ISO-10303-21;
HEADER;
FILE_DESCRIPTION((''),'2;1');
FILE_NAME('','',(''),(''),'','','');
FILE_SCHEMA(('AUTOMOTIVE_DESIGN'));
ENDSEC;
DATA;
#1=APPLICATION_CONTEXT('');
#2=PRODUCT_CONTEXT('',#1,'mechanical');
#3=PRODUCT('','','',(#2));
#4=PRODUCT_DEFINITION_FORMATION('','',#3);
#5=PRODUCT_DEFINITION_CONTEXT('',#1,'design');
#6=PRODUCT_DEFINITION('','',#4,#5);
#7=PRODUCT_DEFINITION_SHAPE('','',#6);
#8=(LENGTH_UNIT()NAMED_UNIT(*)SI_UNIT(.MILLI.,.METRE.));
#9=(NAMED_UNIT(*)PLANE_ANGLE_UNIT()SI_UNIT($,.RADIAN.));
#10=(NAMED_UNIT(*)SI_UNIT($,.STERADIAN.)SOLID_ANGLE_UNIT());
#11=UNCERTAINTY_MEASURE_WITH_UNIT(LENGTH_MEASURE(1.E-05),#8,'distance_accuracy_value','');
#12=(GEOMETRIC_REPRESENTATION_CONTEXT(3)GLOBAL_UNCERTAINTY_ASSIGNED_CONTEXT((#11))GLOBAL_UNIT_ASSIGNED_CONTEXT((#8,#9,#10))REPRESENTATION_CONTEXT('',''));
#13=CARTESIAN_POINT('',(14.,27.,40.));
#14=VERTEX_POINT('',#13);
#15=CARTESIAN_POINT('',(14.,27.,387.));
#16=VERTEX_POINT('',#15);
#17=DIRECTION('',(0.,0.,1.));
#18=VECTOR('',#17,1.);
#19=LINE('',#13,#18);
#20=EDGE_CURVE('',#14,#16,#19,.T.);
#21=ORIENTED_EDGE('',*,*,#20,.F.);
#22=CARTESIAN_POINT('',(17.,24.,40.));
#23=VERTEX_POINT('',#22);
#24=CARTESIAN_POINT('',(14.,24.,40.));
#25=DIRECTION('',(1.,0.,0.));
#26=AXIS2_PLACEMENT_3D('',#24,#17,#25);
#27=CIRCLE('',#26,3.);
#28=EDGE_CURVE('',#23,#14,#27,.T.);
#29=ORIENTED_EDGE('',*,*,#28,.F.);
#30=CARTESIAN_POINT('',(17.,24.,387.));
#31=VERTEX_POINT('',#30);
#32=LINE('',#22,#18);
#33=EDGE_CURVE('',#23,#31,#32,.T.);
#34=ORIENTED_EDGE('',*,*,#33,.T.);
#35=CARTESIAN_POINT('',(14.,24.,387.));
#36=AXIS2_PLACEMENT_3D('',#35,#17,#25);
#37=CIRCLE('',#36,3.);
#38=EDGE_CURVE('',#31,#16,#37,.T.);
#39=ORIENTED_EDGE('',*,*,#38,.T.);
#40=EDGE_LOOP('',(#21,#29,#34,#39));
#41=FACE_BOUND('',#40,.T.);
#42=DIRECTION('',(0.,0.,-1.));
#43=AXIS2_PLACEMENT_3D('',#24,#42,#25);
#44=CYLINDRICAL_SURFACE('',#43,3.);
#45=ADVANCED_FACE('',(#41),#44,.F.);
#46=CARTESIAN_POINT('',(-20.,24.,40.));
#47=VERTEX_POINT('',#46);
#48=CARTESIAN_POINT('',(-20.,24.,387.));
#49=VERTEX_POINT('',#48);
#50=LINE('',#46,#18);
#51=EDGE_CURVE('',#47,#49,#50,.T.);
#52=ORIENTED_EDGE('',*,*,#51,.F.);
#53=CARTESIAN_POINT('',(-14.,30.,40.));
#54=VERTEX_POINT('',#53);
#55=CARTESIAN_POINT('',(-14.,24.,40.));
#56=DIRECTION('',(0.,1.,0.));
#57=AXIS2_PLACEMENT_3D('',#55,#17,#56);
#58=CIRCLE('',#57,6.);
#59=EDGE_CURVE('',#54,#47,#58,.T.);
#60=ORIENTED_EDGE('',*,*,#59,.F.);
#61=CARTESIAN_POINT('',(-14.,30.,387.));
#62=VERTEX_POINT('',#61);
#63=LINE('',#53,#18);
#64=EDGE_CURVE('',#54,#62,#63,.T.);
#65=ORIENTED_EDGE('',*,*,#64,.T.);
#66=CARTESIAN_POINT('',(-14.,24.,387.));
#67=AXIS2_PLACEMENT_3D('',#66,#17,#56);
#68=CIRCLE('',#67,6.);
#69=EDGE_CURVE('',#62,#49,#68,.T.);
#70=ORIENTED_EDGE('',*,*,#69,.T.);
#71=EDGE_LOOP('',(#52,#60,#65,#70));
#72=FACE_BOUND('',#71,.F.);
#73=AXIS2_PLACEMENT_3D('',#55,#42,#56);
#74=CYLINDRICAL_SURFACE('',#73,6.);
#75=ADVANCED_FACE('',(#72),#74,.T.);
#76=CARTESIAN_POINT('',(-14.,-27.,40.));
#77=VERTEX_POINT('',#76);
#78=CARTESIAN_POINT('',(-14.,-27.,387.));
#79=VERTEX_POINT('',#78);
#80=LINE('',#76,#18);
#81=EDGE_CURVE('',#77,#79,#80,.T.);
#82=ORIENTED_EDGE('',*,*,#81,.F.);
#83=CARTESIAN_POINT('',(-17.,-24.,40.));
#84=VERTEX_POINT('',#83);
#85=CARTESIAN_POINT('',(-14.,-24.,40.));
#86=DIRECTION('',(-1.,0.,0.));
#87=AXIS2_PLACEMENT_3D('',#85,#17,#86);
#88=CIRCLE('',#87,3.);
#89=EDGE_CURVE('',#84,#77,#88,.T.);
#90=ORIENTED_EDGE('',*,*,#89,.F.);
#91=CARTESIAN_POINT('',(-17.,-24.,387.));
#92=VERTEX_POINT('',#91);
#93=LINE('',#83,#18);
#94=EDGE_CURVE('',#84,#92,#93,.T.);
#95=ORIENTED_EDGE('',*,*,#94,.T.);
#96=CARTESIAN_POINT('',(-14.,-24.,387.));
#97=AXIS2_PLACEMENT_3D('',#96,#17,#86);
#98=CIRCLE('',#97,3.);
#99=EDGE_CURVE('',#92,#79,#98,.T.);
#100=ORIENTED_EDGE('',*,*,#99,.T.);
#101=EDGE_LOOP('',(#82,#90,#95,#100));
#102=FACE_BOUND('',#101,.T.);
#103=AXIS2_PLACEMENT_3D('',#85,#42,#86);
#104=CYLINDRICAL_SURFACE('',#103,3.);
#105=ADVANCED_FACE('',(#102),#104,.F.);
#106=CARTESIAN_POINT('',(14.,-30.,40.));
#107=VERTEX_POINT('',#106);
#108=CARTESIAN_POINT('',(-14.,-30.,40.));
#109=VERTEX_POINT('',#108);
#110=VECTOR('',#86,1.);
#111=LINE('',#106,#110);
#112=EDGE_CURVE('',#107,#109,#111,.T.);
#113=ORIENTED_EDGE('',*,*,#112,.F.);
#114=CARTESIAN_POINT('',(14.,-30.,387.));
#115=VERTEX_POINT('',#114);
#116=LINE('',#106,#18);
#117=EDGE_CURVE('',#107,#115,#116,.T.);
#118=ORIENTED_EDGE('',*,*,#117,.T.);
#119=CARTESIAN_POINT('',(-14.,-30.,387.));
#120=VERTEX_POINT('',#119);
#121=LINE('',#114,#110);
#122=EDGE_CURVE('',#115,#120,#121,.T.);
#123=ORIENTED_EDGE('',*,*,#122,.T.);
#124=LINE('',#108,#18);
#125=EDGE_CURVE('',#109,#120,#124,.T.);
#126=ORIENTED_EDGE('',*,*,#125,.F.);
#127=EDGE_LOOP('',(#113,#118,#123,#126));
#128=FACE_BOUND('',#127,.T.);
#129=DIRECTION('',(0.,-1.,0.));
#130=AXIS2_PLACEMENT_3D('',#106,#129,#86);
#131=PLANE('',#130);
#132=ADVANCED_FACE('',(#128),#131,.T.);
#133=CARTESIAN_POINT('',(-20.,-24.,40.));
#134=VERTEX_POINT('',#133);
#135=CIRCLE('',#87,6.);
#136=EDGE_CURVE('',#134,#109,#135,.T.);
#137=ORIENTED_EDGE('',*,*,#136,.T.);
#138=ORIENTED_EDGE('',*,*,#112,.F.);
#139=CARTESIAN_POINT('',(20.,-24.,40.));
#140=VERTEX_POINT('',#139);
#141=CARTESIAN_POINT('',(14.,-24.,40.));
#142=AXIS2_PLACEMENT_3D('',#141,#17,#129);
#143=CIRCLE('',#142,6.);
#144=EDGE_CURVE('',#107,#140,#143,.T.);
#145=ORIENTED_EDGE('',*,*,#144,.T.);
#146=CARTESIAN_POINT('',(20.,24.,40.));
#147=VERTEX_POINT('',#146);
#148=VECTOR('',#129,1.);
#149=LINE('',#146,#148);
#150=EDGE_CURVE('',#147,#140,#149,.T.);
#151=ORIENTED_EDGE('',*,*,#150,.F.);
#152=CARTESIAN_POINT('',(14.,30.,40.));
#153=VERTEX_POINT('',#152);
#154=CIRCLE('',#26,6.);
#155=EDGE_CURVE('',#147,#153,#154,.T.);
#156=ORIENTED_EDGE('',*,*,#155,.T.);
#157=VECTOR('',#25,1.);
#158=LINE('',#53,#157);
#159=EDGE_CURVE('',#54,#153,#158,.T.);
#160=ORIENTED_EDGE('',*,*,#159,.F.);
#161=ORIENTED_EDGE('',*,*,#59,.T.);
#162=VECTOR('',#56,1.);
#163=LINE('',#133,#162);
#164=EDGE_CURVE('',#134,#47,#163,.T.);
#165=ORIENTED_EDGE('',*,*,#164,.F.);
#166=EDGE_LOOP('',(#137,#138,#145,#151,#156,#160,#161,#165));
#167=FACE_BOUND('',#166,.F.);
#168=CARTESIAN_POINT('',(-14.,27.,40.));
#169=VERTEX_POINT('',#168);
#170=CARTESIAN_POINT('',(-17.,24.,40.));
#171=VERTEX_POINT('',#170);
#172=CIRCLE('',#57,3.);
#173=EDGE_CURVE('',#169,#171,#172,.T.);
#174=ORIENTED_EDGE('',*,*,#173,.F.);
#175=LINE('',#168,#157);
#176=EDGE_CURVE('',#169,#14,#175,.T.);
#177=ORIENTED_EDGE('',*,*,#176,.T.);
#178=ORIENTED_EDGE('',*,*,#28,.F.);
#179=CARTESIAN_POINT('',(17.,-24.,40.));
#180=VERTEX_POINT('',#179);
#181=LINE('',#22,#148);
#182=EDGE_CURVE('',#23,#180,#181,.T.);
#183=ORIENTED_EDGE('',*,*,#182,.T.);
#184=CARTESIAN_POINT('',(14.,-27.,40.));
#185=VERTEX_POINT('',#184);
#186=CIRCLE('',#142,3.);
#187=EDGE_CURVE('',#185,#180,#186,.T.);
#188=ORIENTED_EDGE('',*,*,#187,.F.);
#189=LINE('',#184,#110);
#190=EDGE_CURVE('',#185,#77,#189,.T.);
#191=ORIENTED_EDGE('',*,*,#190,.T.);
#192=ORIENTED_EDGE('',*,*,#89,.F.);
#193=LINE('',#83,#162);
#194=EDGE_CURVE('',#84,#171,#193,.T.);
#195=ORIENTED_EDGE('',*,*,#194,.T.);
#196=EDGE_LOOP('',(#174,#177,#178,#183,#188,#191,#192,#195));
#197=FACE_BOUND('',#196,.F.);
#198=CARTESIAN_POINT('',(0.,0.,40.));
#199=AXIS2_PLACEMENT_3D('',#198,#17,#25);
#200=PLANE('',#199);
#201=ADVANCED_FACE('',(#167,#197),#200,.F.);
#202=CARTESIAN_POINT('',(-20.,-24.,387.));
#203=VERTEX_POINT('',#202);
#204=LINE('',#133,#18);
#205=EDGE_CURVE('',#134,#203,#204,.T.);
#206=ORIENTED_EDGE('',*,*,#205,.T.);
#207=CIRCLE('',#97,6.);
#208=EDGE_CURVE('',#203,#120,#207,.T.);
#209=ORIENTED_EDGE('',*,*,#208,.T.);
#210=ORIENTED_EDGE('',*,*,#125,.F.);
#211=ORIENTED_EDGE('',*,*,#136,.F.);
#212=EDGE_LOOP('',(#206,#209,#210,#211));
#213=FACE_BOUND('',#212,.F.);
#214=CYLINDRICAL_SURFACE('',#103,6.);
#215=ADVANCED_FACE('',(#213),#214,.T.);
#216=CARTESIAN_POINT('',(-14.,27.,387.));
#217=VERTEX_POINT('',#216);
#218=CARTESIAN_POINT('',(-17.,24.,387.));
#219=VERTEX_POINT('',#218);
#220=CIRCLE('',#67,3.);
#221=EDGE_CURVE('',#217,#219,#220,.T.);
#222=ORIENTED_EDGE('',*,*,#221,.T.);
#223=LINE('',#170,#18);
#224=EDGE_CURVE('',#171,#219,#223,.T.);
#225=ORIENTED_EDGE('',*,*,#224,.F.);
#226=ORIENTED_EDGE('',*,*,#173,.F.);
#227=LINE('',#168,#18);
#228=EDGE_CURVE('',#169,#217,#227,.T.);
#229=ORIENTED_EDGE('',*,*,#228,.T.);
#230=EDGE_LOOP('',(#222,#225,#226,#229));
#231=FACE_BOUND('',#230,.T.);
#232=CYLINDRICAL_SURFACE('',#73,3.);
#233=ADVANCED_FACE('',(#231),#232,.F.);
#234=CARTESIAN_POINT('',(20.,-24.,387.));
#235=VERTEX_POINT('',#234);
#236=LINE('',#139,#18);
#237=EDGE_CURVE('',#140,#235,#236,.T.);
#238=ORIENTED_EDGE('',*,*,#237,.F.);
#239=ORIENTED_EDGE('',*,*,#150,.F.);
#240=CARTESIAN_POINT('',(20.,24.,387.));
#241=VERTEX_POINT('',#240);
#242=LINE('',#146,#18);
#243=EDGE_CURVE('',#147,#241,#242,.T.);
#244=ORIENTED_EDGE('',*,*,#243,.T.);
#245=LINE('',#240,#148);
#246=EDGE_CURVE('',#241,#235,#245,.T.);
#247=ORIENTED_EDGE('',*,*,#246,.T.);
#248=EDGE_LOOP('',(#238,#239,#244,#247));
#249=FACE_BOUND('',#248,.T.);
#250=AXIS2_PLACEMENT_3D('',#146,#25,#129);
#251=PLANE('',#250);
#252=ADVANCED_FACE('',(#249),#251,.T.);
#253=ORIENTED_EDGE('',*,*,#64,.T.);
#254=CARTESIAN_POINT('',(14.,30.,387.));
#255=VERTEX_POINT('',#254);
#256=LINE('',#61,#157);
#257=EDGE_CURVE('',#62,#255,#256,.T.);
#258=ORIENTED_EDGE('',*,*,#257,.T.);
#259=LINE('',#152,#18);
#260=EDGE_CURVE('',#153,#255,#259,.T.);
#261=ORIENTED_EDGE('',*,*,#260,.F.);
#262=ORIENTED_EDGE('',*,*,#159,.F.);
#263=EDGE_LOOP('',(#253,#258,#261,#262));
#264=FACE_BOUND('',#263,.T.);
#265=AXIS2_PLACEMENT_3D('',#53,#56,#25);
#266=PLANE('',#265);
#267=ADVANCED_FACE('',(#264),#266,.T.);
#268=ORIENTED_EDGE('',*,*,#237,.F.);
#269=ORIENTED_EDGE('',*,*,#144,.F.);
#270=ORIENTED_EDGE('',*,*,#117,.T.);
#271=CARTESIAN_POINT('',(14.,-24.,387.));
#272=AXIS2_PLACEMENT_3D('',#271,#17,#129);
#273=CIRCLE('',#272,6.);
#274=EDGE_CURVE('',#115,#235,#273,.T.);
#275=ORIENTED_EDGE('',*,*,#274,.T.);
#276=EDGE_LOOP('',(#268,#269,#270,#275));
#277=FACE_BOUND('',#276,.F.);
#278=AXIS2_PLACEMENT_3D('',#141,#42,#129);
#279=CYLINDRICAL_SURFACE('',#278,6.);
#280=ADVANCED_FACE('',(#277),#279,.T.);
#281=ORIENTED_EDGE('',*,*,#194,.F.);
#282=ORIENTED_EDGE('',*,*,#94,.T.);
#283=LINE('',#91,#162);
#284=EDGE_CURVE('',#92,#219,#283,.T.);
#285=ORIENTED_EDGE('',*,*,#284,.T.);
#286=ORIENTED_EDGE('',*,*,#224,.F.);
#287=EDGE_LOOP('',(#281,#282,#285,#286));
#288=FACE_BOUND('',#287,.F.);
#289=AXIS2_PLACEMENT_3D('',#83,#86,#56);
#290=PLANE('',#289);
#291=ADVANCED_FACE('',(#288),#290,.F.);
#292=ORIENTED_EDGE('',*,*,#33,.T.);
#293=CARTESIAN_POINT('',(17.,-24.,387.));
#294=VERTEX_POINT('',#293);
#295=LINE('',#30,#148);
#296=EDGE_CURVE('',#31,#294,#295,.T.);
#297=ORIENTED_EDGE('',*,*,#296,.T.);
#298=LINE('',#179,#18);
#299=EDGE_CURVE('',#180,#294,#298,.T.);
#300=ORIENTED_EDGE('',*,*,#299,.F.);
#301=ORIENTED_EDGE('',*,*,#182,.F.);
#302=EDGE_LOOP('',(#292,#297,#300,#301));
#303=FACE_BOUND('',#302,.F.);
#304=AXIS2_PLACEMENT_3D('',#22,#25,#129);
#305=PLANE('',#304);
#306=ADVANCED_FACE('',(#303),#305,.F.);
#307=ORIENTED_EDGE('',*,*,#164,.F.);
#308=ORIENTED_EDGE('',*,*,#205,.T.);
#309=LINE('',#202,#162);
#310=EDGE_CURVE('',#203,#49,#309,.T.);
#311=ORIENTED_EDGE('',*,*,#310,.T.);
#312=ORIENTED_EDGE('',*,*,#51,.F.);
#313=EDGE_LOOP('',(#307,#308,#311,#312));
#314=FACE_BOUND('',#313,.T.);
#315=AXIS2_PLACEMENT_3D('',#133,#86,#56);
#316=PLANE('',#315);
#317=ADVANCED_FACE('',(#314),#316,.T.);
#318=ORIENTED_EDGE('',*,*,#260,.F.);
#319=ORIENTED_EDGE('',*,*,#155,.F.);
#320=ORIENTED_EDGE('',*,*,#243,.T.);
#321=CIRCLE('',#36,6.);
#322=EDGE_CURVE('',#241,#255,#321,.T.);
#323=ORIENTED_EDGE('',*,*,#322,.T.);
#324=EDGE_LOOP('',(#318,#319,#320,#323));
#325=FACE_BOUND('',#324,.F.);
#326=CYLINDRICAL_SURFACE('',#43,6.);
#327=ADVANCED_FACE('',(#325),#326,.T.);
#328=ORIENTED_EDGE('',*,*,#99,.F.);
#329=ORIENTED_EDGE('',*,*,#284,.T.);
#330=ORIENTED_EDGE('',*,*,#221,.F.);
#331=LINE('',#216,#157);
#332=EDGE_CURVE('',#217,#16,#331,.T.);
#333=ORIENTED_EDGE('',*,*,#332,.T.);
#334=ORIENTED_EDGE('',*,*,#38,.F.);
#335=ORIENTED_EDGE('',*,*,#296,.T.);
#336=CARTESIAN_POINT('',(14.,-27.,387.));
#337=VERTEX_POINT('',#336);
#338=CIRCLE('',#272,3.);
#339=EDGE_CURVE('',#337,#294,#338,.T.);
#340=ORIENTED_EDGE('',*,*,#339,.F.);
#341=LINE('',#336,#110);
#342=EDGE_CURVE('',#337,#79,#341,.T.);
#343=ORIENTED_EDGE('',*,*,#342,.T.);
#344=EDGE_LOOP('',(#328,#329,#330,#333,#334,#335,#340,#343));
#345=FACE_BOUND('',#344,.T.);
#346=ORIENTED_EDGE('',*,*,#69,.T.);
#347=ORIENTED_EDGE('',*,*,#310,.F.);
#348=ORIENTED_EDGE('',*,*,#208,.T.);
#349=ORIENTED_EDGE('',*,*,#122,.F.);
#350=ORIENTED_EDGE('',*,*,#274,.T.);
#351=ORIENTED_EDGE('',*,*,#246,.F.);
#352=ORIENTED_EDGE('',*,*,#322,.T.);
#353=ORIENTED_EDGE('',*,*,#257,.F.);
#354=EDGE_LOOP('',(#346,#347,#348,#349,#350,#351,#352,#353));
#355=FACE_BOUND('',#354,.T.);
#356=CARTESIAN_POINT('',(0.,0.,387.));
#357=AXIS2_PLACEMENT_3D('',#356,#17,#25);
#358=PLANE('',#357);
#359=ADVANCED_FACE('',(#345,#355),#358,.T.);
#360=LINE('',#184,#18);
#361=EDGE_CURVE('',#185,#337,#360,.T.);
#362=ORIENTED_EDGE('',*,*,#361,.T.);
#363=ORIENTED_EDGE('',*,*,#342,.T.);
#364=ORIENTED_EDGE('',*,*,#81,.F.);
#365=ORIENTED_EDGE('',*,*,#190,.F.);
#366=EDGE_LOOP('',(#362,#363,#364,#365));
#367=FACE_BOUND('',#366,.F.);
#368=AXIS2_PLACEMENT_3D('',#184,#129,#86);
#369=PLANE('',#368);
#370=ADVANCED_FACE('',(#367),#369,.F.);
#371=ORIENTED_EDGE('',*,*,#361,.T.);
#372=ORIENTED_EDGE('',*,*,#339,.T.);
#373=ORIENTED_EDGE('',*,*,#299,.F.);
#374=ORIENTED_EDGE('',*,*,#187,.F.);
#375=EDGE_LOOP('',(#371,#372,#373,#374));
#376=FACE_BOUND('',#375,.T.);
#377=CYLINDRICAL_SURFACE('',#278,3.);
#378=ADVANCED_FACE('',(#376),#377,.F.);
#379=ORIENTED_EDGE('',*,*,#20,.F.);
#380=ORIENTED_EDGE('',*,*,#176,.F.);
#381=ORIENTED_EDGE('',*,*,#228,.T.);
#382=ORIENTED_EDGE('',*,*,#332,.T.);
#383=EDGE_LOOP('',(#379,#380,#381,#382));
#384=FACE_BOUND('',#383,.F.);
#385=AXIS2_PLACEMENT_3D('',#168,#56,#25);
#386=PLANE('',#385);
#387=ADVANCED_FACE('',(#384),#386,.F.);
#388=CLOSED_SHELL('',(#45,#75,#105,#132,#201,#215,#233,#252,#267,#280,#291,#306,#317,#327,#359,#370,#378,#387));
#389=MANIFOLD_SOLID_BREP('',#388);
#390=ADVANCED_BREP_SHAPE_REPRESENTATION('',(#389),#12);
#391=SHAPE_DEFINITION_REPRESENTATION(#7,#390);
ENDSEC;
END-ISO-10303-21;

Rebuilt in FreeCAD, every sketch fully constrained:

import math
import FreeCAD as App
import Part
import Sketcher
from FreeCAD import Vector

doc = App.newDocument("Part")
body = doc.addObject("PartDesign::Body", "Body")

# Sketch on XY plane
sketch1 = doc.addObject("Sketcher::SketchObject", "Sketch")
body.addObject(sketch1)
sketch1.AttachmentSupport = (doc.XY_Plane, [""])
sketch1.MapMode = "FlatFace"
sketch1.AttachmentOffset = App.Placement(Vector(0, 0, 40), App.Rotation())
sketch1.addGeometry(Part.LineSegment(Vector(-20, 24, 0), Vector(-20, -24, 0)), False)
sketch1.addGeometry(Part.ArcOfCircle(Part.Circle(Vector(-14, -24, 0), Vector(0, 0, 1), 6), math.radians(180), math.radians(270)), False)
sketch1.addGeometry(Part.LineSegment(Vector(-14, -30, 0), Vector(14, -30, 0)), False)
sketch1.addGeometry(Part.ArcOfCircle(Part.Circle(Vector(14, -24, 0), Vector(0, 0, 1), 6), math.radians(-90), math.radians(0)), False)
sketch1.addGeometry(Part.LineSegment(Vector(20, -24, 0), Vector(20, 24, 0)), False)
sketch1.addGeometry(Part.ArcOfCircle(Part.Circle(Vector(14, 24, 0), Vector(0, 0, 1), 6), math.radians(0), math.radians(90)), False)
sketch1.addGeometry(Part.LineSegment(Vector(14, 30, 0), Vector(-14, 30, 0)), False)
sketch1.addGeometry(Part.ArcOfCircle(Part.Circle(Vector(-14, 24, 0), Vector(0, 0, 1), 6), math.radians(90), math.radians(180)), False)
sketch1.addGeometry(Part.ArcOfCircle(Part.Circle(Vector(-14, 24, 0), Vector(0, 0, 1), 3), math.radians(90), math.radians(180)), False)
sketch1.addGeometry(Part.LineSegment(Vector(-14, 27, 0), Vector(14, 27, 0)), False)
sketch1.addGeometry(Part.ArcOfCircle(Part.Circle(Vector(14, 24, 0), Vector(0, 0, 1), 3), math.radians(0), math.radians(90)), False)
sketch1.addGeometry(Part.LineSegment(Vector(17, 24, 0), Vector(17, -24, 0)), False)
sketch1.addGeometry(Part.ArcOfCircle(Part.Circle(Vector(14, -24, 0), Vector(0, 0, 1), 3), math.radians(-90), math.radians(0)), False)
sketch1.addGeometry(Part.LineSegment(Vector(14, -27, 0), Vector(-14, -27, 0)), False)
sketch1.addGeometry(Part.ArcOfCircle(Part.Circle(Vector(-14, -24, 0), Vector(0, 0, 1), 3), math.radians(180), math.radians(270)), False)
sketch1.addGeometry(Part.LineSegment(Vector(-17, -24, 0), Vector(-17, 24, 0)), False)
sketch1.addConstraint(Sketcher.Constraint("Tangent", 0, 2, 1, 1))
sketch1.addConstraint(Sketcher.Constraint("Tangent", 1, 2, 2, 1))
sketch1.addConstraint(Sketcher.Constraint("Tangent", 2, 2, 3, 1))
sketch1.addConstraint(Sketcher.Constraint("Tangent", 3, 2, 4, 1))
sketch1.addConstraint(Sketcher.Constraint("Tangent", 4, 2, 5, 1))
sketch1.addConstraint(Sketcher.Constraint("Tangent", 5, 2, 6, 1))
sketch1.addConstraint(Sketcher.Constraint("Tangent", 6, 2, 7, 1))
sketch1.addConstraint(Sketcher.Constraint("Tangent", 7, 2, 0, 1))
sketch1.addConstraint(Sketcher.Constraint("Tangent", 8, 1, 9, 1))
sketch1.addConstraint(Sketcher.Constraint("Tangent", 9, 2, 10, 2))
sketch1.addConstraint(Sketcher.Constraint("Tangent", 10, 1, 11, 1))
sketch1.addConstraint(Sketcher.Constraint("Tangent", 11, 2, 12, 2))
sketch1.addConstraint(Sketcher.Constraint("Tangent", 12, 1, 13, 1))
sketch1.addConstraint(Sketcher.Constraint("Tangent", 13, 2, 14, 2))
sketch1.addConstraint(Sketcher.Constraint("Tangent", 14, 1, 15, 1))
sketch1.addConstraint(Sketcher.Constraint("Tangent", 15, 2, 8, 2))
sketch1.addConstraint(Sketcher.Constraint("Vertical", 0))
sketch1.addConstraint(Sketcher.Constraint("Horizontal", 2))
sketch1.addConstraint(Sketcher.Constraint("Vertical", 4))
sketch1.addConstraint(Sketcher.Constraint("Horizontal", 6))
sketch1.addConstraint(Sketcher.Constraint("Horizontal", 9))
sketch1.addConstraint(Sketcher.Constraint("Vertical", 11))
sketch1.addConstraint(Sketcher.Constraint("Horizontal", 13))
sketch1.addConstraint(Sketcher.Constraint("Vertical", 15))
sketch1.addConstraint(Sketcher.Constraint("Coincident", 8, 3, 7, 3))
sketch1.addConstraint(Sketcher.Constraint("Coincident", 10, 3, 5, 3))
sketch1.addConstraint(Sketcher.Constraint("Coincident", 12, 3, 3, 3))
sketch1.addConstraint(Sketcher.Constraint("Equal", 1, 3))
sketch1.addConstraint(Sketcher.Constraint("Equal", 3, 5))
sketch1.addConstraint(Sketcher.Constraint("Equal", 5, 7))
sketch1.addConstraint(Sketcher.Constraint("Equal", 12, 14))
sketch1.addConstraint(Sketcher.Constraint("Symmetric", 1, 3, 5, 3, -1, 1))
sketch1.addConstraint(Sketcher.Constraint("Radius", 1, 6.0))
sketch1.addConstraint(Sketcher.Constraint("Radius", 8, 3.0))
sketch1.addConstraint(Sketcher.Constraint("DistanceX", 0, 2, -1, 1, 20.0))
sketch1.addConstraint(Sketcher.Constraint("DistanceY", 1, 2, -1, 1, 30.0))
pad1 = doc.addObject("PartDesign::Pad", "Pad")
body.addObject(pad1)
pad1.Profile = sketch1
pad1.Length = 347

doc.recompute()
